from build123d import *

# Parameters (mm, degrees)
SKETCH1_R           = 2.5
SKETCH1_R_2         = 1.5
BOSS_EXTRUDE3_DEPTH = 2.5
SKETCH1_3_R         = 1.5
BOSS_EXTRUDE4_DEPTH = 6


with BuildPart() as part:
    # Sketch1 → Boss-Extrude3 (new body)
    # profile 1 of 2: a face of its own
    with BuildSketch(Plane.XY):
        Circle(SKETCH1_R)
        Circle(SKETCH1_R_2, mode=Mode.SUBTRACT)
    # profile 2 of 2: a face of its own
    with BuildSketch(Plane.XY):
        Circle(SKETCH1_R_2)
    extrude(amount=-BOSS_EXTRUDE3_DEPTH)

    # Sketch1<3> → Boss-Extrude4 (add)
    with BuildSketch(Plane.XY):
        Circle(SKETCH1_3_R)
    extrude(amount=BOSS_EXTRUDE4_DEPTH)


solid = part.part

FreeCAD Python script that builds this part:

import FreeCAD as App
import Part
import Sketcher

doc = App.newDocument("Part")
body = doc.addObject("PartDesign::Body", "Body")

sketch1 = doc.addObject("Sketcher::SketchObject", "Sketch")
body.addObject(sketch1)
sketch1.AttachmentSupport = (doc.XY_Plane, [""])
sketch1.MapMode = "FlatFace"
sketch1.addGeometry(Part.Circle(App.Vector(0, 0, 0), App.Vector(0, 0, 1), 2.5), False)
sketch1.addConstraint(Sketcher.Constraint("Coincident", 0, 3, -1, 1))
sketch1.addConstraint(Sketcher.Constraint("Diameter", 0, 5.0))
pad1 = doc.addObject("PartDesign::Pad", "Pad")
body.addObject(pad1)
pad1.Profile = sketch1
pad1.Length = 2.5
pad1.Reversed = True

sketch2 = doc.addObject("Sketcher::SketchObject", "Sketch001")
body.addObject(sketch2)
sketch2.AttachmentSupport = (doc.XY_Plane, [""])
sketch2.MapMode = "FlatFace"
sketch2.addGeometry(Part.Circle(App.Vector(0, 0, 0), App.Vector(0, 0, 1), 1.5), False)
sketch2.addConstraint(Sketcher.Constraint("Coincident", 0, 3, -1, 1))
sketch2.addConstraint(Sketcher.Constraint("Diameter", 0, 3.0))
pad2 = doc.addObject("PartDesign::Pad", "Pad001")
body.addObject(pad2)
pad2.Profile = sketch2
pad2.Length = 6

doc.recompute()
